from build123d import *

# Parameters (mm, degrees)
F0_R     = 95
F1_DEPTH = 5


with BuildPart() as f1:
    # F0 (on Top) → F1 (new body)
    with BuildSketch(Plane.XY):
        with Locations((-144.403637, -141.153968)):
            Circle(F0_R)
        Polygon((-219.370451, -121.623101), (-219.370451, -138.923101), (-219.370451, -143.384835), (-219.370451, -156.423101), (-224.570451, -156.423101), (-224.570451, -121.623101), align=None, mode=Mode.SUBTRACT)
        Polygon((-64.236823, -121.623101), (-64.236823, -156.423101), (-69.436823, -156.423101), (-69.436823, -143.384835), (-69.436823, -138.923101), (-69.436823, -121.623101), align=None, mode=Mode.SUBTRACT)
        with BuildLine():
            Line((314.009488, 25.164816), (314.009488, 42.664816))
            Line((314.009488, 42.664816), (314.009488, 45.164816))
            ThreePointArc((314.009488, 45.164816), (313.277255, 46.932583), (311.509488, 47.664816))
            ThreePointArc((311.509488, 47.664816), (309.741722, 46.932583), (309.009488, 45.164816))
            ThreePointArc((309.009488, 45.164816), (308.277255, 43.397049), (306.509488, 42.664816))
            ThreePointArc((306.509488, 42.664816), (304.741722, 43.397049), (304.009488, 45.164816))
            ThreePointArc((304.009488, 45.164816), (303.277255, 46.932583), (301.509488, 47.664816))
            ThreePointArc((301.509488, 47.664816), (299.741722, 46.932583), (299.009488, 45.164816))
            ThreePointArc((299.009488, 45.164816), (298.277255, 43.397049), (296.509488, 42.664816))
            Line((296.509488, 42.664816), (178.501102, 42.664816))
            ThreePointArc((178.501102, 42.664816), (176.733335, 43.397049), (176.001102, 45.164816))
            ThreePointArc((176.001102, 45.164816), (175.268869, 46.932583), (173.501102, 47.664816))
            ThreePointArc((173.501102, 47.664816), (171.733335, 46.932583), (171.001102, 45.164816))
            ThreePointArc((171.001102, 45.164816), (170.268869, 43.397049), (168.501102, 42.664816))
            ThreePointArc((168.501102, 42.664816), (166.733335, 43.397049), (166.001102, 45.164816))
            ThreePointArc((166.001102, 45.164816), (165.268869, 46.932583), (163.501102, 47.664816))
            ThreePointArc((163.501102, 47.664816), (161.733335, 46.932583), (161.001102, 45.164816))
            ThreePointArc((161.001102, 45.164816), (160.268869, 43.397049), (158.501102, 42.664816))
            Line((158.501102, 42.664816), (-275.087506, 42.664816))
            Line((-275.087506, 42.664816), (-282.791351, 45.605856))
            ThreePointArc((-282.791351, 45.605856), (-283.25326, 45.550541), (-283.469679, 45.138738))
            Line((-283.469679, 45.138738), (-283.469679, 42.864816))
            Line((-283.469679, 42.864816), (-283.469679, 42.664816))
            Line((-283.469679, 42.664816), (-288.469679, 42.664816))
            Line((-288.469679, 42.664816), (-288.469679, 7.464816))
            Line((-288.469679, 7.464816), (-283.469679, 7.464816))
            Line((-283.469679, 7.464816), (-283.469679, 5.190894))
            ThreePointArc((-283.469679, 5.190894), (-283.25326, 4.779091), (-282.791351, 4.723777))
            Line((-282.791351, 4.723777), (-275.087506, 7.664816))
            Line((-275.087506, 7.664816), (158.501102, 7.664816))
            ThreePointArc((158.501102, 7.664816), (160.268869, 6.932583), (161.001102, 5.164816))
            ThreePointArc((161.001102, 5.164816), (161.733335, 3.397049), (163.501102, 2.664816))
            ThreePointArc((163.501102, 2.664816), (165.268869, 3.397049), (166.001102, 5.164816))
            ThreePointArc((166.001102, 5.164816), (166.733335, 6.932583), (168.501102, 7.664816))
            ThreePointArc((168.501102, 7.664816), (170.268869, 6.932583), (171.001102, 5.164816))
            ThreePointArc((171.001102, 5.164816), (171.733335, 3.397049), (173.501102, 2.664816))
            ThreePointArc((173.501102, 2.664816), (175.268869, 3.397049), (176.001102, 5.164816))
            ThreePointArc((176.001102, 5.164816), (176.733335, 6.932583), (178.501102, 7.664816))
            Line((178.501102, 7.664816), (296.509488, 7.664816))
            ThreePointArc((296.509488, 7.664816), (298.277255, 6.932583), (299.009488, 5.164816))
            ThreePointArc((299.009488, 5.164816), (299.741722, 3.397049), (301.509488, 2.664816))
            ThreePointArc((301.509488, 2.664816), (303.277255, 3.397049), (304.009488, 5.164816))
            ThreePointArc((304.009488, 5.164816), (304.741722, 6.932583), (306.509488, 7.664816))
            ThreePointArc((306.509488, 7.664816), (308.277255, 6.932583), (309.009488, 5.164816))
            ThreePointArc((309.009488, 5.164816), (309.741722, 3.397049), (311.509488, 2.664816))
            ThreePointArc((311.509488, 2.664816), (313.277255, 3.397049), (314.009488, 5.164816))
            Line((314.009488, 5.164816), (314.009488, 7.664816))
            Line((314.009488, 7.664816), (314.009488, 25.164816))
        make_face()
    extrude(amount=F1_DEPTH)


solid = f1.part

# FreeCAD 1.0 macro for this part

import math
import FreeCAD as App
import Part
import Sketcher

V = App.Vector


def add_polygon(sketch, points):
    """Adds a closed chain of lines whose ends are joined by coincident constraints."""
    first, n = sketch.GeometryCount, len(points)
    for a, b in zip(points, points[1:] + points[:1]):
        sketch.addGeometry(Part.LineSegment(App.Vector(*a, 0), App.Vector(*b, 0)), False)
    for i in range(n):
        sketch.addConstraint(Sketcher.Constraint("Coincident", first + i, 2, first + (i + 1) % n, 1))

doc = App.newDocument("Part")
params = doc.addObject("Spreadsheet::Sheet", "Params")
for row, (alias, value) in enumerate([
    ("sketch1_diameter", "190 mm"),
    ("sketch1_radius", "2.5 mm"),
    ("sketch1_radius2", "0.5 mm"),
    ("sketch1_width", "5 mm"),
    ("sketch1_height", "40 mm"),
    ("pad1_length", "5 mm"),
], start=1):
    params.set(f"A{row}", alias)
    params.set(f"B{row}", "=" + value)
    params.setAlias(f"B{row}", alias)

body = doc.addObject("PartDesign::Body", "Body")
body.AllowCompound = True

# Sketch on XY plane
sketch1 = body.newObject("Sketcher::SketchObject", "Sketch")
sketch1.AttachmentSupport = (doc.getObject("XY_Plane"), [""])
sketch1.MapMode = "FlatFace"
sketch1.addGeometry(Part.Circle(V(-144.4, -141.15, 0), V(0, 0, 1), 95), False)  # 0
add_polygon(sketch1, [(-224.57, -121.62), (-219.37, -121.62), (-219.37, -156.42), (-224.57, -156.42)])  # lines 1-4
add_polygon(sketch1, [(-69.44, -121.62), (-64.24, -121.62), (-64.24, -156.42), (-69.44, -156.42)])  # lines 5-8
sketch1.addGeometry(Part.ArcOfCircle(Part.Circle(V(311.51, 45.16, 0), V(0, 0, 1), 2.5), math.radians(0), math.radians(90)), False)  # 9
sketch1.addGeometry(Part.ArcOfCircle(Part.Circle(V(311.51, 45.16, 0), V(0, 0, 1), 2.5), math.radians(90), math.radians(180)), False)  # 10
sketch1.addGeometry(Part.ArcOfCircle(Part.Circle(V(306.51, 45.16, 0), V(0, 0, 1), 2.5), math.radians(-90), math.radians(0)), False)  # 11
sketch1.addGeometry(Part.ArcOfCircle(Part.Circle(V(306.51, 45.16, 0), V(0, 0, 1), 2.5), math.radians(-180), math.radians(-90)), False)  # 12
sketch1.addGeometry(Part.ArcOfCircle(Part.Circle(V(301.51, 45.16, 0), V(0, 0, 1), 2.5), math.radians(0), math.radians(90)), False)  # 13
sketch1.addGeometry(Part.ArcOfCircle(Part.Circle(V(301.51, 45.16, 0), V(0, 0, 1), 2.5), math.radians(90), math.radians(180)), False)  # 14
sketch1.addGeometry(Part.ArcOfCircle(Part.Circle(V(296.51, 45.16, 0), V(0, 0, 1), 2.5), math.radians(-90), math.radians(0)), False)  # 15
sketch1.addGeometry(Part.LineSegment(V(296.51, 42.66, 0), V(178.5, 42.66, 0)), False)  # 16
sketch1.addGeometry(Part.ArcOfCircle(Part.Circle(V(178.5, 45.16, 0), V(0, 0, 1), 2.5), math.radians(180), math.radians(270)), False)  # 17
sketch1.addGeometry(Part.ArcOfCircle(Part.Circle(V(173.5, 45.16, 0), V(0, 0, 1), 2.5), math.radians(0), math.radians(90)), False)  # 18
sketch1.addGeometry(Part.ArcOfCircle(Part.Circle(V(173.5, 45.16, 0), V(0, 0, 1), 2.5), math.radians(90), math.radians(180)), False)  # 19
sketch1.addGeometry(Part.ArcOfCircle(Part.Circle(V(168.5, 45.16, 0), V(0, 0, 1), 2.5), math.radians(-90), math.radians(0)), False)  # 20
sketch1.addGeometry(Part.ArcOfCircle(Part.Circle(V(168.5, 45.16, 0), V(0, 0, 1), 2.5), math.radians(180), math.radians(270)), False)  # 21
sketch1.addGeometry(Part.ArcOfCircle(Part.Circle(V(163.5, 45.16, 0), V(0, 0, 1), 2.5), math.radians(0), math.radians(90)), False)  # 22
sketch1.addGeometry(Part.ArcOfCircle(Part.Circle(V(163.5, 45.16, 0), V(0, 0, 1), 2.5), math.radians(90), math.radians(180)), False)  # 23
sketch1.addGeometry(Part.ArcOfCircle(Part.Circle(V(158.5, 45.16, 0), V(0, 0, 1), 2.5), math.radians(-90), math.radians(0)), False)  # 24
sketch1.addGeometry(Part.LineSegment(V(158.5, 42.66, 0), V(-275.09, 42.66, 0)), False)  # 25
sketch1.addGeometry(Part.LineSegment(V(-275.09, 42.66, 0), V(-282.79, 45.61, 0)), False)  # 26
sketch1.addGeometry(Part.ArcOfCircle(Part.Circle(V(-282.97, 45.14, 0), V(0, 0, 1), 0.5), math.radians(69), math.radians(180)), False)  # 27
sketch1.addGeometry(Part.LineSegment(V(-283.47, 45.14, 0), V(-283.47, 42.66, 0)), False)  # 28
sketch1.addGeometry(Part.LineSegment(V(-283.47, 42.66, 0), V(-288.47, 42.66, 0)), False)  # 29
sketch1.addGeometry(Part.LineSegment(V(-288.47, 42.66, 0), V(-288.47, 7.46, 0)), False)  # 30
sketch1.addGeometry(Part.LineSegment(V(-288.47, 7.46, 0), V(-283.47, 7.46, 0)), False)  # 31
sketch1.addGeometry(Part.LineSegment(V(-283.47, 7.46, 0), V(-283.47, 5.19, 0)), False)  # 32
sketch1.addGeometry(Part.ArcOfCircle(Part.Circle(V(-282.97, 5.19, 0), V(0, 0, 1), 0.5), math.radians(180), math.radians(291)), False)  # 33
sketch1.addGeometry(Part.LineSegment(V(-282.79, 4.72, 0), V(-275.09, 7.66, 0)), False)  # 34
sketch1.addGeometry(Part.LineSegment(V(-275.09, 7.66, 0), V(158.5, 7.66, 0)), False)  # 35
sketch1.addGeometry(Part.ArcOfCircle(Part.Circle(V(158.5, 5.16, 0), V(0, 0, 1), 2.5), math.radians(0), math.radians(90)), False)  # 36
sketch1.addGeometry(Part.ArcOfCircle(Part.Circle(V(163.5, 5.16, 0), V(0, 0, 1), 2.5), math.radians(180), math.radians(270)), False)  # 37
sketch1.addGeometry(Part.ArcOfCircle(Part.Circle(V(163.5, 5.16, 0), V(0, 0, 1), 2.5), math.radians(-90), math.radians(0)), False)  # 38
sketch1.addGeometry(Part.ArcOfCircle(Part.Circle(V(168.5, 5.16, 0), V(0, 0, 1), 2.5), math.radians(90), math.radians(180)), False)  # 39
sketch1.addGeometry(Part.ArcOfCircle(Part.Circle(V(168.5, 5.16, 0), V(0, 0, 1), 2.5), math.radians(0), math.radians(90)), False)  # 40
sketch1.addGeometry(Part.ArcOfCircle(Part.Circle(V(173.5, 5.16, 0), V(0, 0, 1), 2.5), math.radians(180), math.radians(270)), False)  # 41
sketch1.addGeometry(Part.ArcOfCircle(Part.Circle(V(173.5, 5.16, 0), V(0, 0, 1), 2.5), math.radians(-90), math.radians(0)), False)  # 42
sketch1.addGeometry(Part.ArcOfCircle(Part.Circle(V(178.5, 5.16, 0), V(0, 0, 1), 2.5), math.radians(90), math.radians(180)), False)  # 43
sketch1.addGeometry(Part.LineSegment(V(178.5, 7.66, 0), V(296.51, 7.66, 0)), False)  # 44
sketch1.addGeometry(Part.ArcOfCircle(Part.Circle(V(296.51, 5.16, 0), V(0, 0, 1), 2.5), math.radians(0), math.radians(90)), False)  # 45
sketch1.addGeometry(Part.ArcOfCircle(Part.Circle(V(301.51, 5.16, 0), V(0, 0, 1), 2.5), math.radians(-180), math.radians(-90)), False)  # 46
sketch1.addGeometry(Part.ArcOfCircle(Part.Circle(V(301.51, 5.16, 0), V(0, 0, 1), 2.5), math.radians(-90), math.radians(0)), False)  # 47
sketch1.addGeometry(Part.ArcOfCircle(Part.Circle(V(306.51, 5.16, 0), V(0, 0, 1), 2.5), math.radians(90), math.radians(180)), False)  # 48
sketch1.addGeometry(Part.ArcOfCircle(Part.Circle(V(306.51, 5.16, 0), V(0, 0, 1), 2.5), math.radians(0), math.radians(90)), False)  # 49
sketch1.addGeometry(Part.ArcOfCircle(Part.Circle(V(311.51, 5.16, 0), V(0, 0, 1), 2.5), math.radians(-180), math.radians(-90)), False)  # 50
sketch1.addGeometry(Part.ArcOfCircle(Part.Circle(V(311.51, 5.16, 0), V(0, 0, 1), 2.5), math.radians(-90), math.radians(0)), False)  # 51
sketch1.addGeometry(Part.LineSegment(V(314.01, 5.16, 0), V(314.01, 45.16, 0)), False)  # 52
sketch1.addConstraint([
    Sketcher.Constraint("Tangent", 9, 2, 10, 1),
    Sketcher.Constraint("Tangent", 10, 2, 11, 2),
    Sketcher.Constraint("Tangent", 11, 1, 12, 2),
    Sketcher.Constraint("Tangent", 12, 1, 13, 1),
    Sketcher.Constraint("Tangent", 13, 2, 14, 1),
    Sketcher.Constraint("Tangent", 14, 2, 15, 2),
    Sketcher.Constraint("Tangent", 15, 1, 16, 1),
    Sketcher.Constraint("Tangent", 16, 2, 17, 2),
    Sketcher.Constraint("Tangent", 17, 1, 18, 1),
    Sketcher.Constraint("Tangent", 18, 2, 19, 1),
    Sketcher.Constraint("Tangent", 19, 2, 20, 2),
    Sketcher.Constraint("Tangent", 20, 1, 21, 2),
    Sketcher.Constraint("Tangent", 21, 1, 22, 1),
    Sketcher.Constraint("Tangent", 22, 2, 23, 1),
    Sketcher.Constraint("Tangent", 23, 2, 24, 2),
    Sketcher.Constraint("Tangent", 24, 1, 25, 1),
    Sketcher.Constraint("Coincident", 25, 2, 26, 1),
    Sketcher.Constraint("Tangent", 26, 2, 27, 1),
    Sketcher.Constraint("Tangent", 27, 2, 28, 1),
    Sketcher.Constraint("Coincident", 28, 2, 29, 1),
    Sketcher.Constraint("Coincident", 29, 2, 30, 1),
    Sketcher.Constraint("Coincident", 30, 2, 31, 1),
    Sketcher.Constraint("Coincident", 31, 2, 32, 1),
    Sketcher.Constraint("Tangent", 32, 2, 33, 1),
    Sketcher.Constraint("Coincident", 33, 2, 34, 1),
    Sketcher.Constraint("Coincident", 34, 2, 35, 1),
    Sketcher.Constraint("Tangent", 35, 2, 36, 2),
    Sketcher.Constraint("Tangent", 36, 1, 37, 1),
    Sketcher.Constraint("Tangent", 37, 2, 38, 1),
    Sketcher.Constraint("Tangent", 38, 2, 39, 2),
    Sketcher.Constraint("Tangent", 39, 1, 40, 2),
    Sketcher.Constraint("Tangent", 40, 1, 41, 1),
    Sketcher.Constraint("Tangent", 41, 2, 42, 1),
    Sketcher.Constraint("Tangent", 42, 2, 43, 2),
    Sketcher.Constraint("Tangent", 43, 1, 44, 1),
    Sketcher.Constraint("Tangent", 44, 2, 45, 2),
    Sketcher.Constraint("Tangent", 45, 1, 46, 1),
    Sketcher.Constraint("Tangent", 46, 2, 47, 1),
    Sketcher.Constraint("Tangent", 47, 2, 48, 2),
    Sketcher.Constraint("Tangent", 48, 1, 49, 2),
    Sketcher.Constraint("Tangent", 49, 1, 50, 1),
    Sketcher.Constraint("Tangent", 50, 2, 51, 1),
    Sketcher.Constraint("Tangent", 51, 2, 52, 1),
    Sketcher.Constraint("Tangent", 52, 2, 9, 1),
    Sketcher.Constraint("Horizontal", 1),
    Sketcher.Constraint("Vertical", 2),
    Sketcher.Constraint("Horizontal", 3),
    Sketcher.Constraint("Vertical", 4),
    Sketcher.Constraint("Horizontal", 5),
    Sketcher.Constraint("Vertical", 6),
    Sketcher.Constraint("Horizontal", 7),
    Sketcher.Constraint("Vertical", 8),
    Sketcher.Constraint("Horizontal", 16),
    Sketcher.Constraint("Horizontal", 25),
    Sketcher.Constraint("Vertical", 28),
    Sketcher.Constraint("Horizontal", 29),
    Sketcher.Constraint("Vertical", 30),
    Sketcher.Constraint("Horizontal", 31),
    Sketcher.Constraint("Vertical", 32),
    Sketcher.Constraint("Horizontal", 35),
    Sketcher.Constraint("Horizontal", 44),
    Sketcher.Constraint("Vertical", 52),
    Sketcher.Constraint("Equal", 9, 10),
    Sketcher.Constraint("Equal", 10, 11),
    Sketcher.Constraint("Equal", 11, 12),
    Sketcher.Constraint("Equal", 12, 13),
    Sketcher.Constraint("Equal", 13, 14),
    Sketcher.Constraint("Equal", 14, 15),
    Sketcher.Constraint("Equal", 15, 17),
    Sketcher.Constraint("Equal", 17, 18),
    Sketcher.Constraint("Equal", 18, 19),
    Sketcher.Constraint("Equal", 19, 20),
    Sketcher.Constraint("Equal", 20, 21),
    Sketcher.Constraint("Equal", 21, 22),
    Sketcher.Constraint("Equal", 22, 23),
    Sketcher.Constraint("Equal", 23, 24),
    Sketcher.Constraint("Equal", 27, 33),
    Sketcher.Constraint("Equal", 24, 36),
    Sketcher.Constraint("Equal", 36, 37),
    Sketcher.Constraint("Equal", 37, 38),
    Sketcher.Constraint("Equal", 38, 39),
    Sketcher.Constraint("Equal", 39, 40),
    Sketcher.Constraint("Equal", 40, 41),
    Sketcher.Constraint("Equal", 41, 42),
    Sketcher.Constraint("Equal", 42, 43),
    Sketcher.Constraint("Equal", 43, 45),
    Sketcher.Constraint("Equal", 45, 46),
    Sketcher.Constraint("Equal", 46, 47),
    Sketcher.Constraint("Equal", 47, 48),
    Sketcher.Constraint("Equal", 48, 49),
    Sketcher.Constraint("Equal", 49, 50),
    Sketcher.Constraint("Equal", 50, 51),
    Sketcher.Constraint("Horizontal", 10, 3, 11, 3),
    Sketcher.Constraint("Horizontal", 12, 3, 13, 3),
    Sketcher.Constraint("Horizontal", 14, 3, 15, 3),
    Sketcher.Constraint("Horizontal", 17, 3, 18, 3),
    Sketcher.Constraint("Horizontal", 19, 3, 20, 3),
    Sketcher.Constraint("Horizontal", 21, 3, 22, 3),
    Sketcher.Constraint("Horizontal", 23, 3, 24, 3),
    Sketcher.Constraint("Horizontal", 36, 3, 37, 3),
    Sketcher.Constraint("Horizontal", 38, 3, 39, 3),
    Sketcher.Constraint("Horizontal", 40, 3, 41, 3),
    Sketcher.Constraint("Horizontal", 42, 3, 43, 3),
    Sketcher.Constraint("Horizontal", 45, 3, 46, 3),
    Sketcher.Constraint("Horizontal", 47, 3, 48, 3),
    Sketcher.Constraint("Horizontal", 49, 3, 50, 3),
    Sketcher.Constraint("Horizontal", 4, 2, 5, 2),
    Sketcher.Constraint("Horizontal", 3, 2, 6, 2),
    Sketcher.Constraint("Horizontal", 25, 2, 28, 2),
    Sketcher.Constraint("Vertical", 27, 3, 33, 3),
    Sketcher.Constraint("Vertical", 24, 3, 36, 3),
    Sketcher.Constraint("Vertical", 51, 3, 9, 2),
    Sketcher.Constraint("Vertical", 49, 3, 11, 1),
    Sketcher.Constraint("Vertical", 47, 3, 13, 2),
    Sketcher.Constraint("Vertical", 42, 3, 18, 2),
    Sketcher.Constraint("Vertical", 40, 3, 20, 1),
    Sketcher.Constraint("Vertical", 38, 3, 22, 2),
    Sketcher.Constraint("Vertical", 26, 2, 33, 2),
    Sketcher.Constraint("Vertical", 25, 2, 34, 2),
    Sketcher.Constraint("Vertical", 22, 2, 37, 2),
    Sketcher.Constraint("Vertical", 20, 1, 39, 1),
    Sketcher.Constraint("Vertical", 18, 2, 41, 2),
    Sketcher.Constraint("Vertical", 13, 2, 46, 2),
    Sketcher.Constraint("Vertical", 11, 1, 48, 1),
    Sketcher.Constraint("Vertical", 9, 2, 50, 2),
    Sketcher.Constraint("Equal", 3, 5),
    Sketcher.Constraint("Equal", 26, 34),
    Sketcher.Constraint("Diameter", 0, 190.0),
    Sketcher.Constraint("Radius", 9, 2.5),
    Sketcher.Constraint("Radius", 27, 0.5),
    Sketcher.Constraint("DistanceX", 29, 2, 29, 1, 5.0),
    Sketcher.Constraint("DistanceY", 52, 1, 52, 2, 40.0),
    Sketcher.Constraint("DistanceX", 1, 1, 1, 2, 5.2),
    Sketcher.Constraint("DistanceY", 2, 2, 2, 1, 34.8),
    Sketcher.Constraint("DistanceY", 30, 2, 30, 1, 35.2),
    Sketcher.Constraint("DistanceX", 25, 2, 25, 1, 433.588608),
    Sketcher.Constraint("DistanceY", 28, 2, 28, 1, 2.473922),
    Sketcher.Constraint("DistanceX", -1, 1, 17, 3, 178.501102),
    Sketcher.Constraint("DistanceY", 1, 2, -1, 1, 121.623101),
    Sketcher.Constraint("DistanceX", 16, 2, 16, 1, 118.008386),
    Sketcher.Constraint("DistanceY", 0, 3, -1, 1, 141.153968),
    Sketcher.Constraint("DistanceX", 27, 3, -1, 1, 282.969679),
    Sketcher.Constraint("DistanceX", 1, 2, -1, 1, 219.370451),
    Sketcher.Constraint("DistanceX", 0, 3, -1, 1, 144.403637),
    Sketcher.Constraint("DistanceY", -1, 1, 9, 3, 45.164816),
    Sketcher.Constraint("DistanceX", 5, 2, -1, 1, 64.236823),
])
sketch1.setExpression("Constraints[135]", "Params.sketch1_diameter")
sketch1.setExpression("Constraints[136]", "Params.sketch1_radius")
sketch1.setExpression("Constraints[137]", "Params.sketch1_radius2")
sketch1.setExpression("Constraints[138]", "Params.sketch1_width")
sketch1.setExpression("Constraints[139]", "Params.sketch1_height")
pad1 = body.newObject("PartDesign::Pad", "Pad")
pad1.Profile = sketch1
pad1.setExpression("Length", "Params.pad1_length")

doc.recompute()
